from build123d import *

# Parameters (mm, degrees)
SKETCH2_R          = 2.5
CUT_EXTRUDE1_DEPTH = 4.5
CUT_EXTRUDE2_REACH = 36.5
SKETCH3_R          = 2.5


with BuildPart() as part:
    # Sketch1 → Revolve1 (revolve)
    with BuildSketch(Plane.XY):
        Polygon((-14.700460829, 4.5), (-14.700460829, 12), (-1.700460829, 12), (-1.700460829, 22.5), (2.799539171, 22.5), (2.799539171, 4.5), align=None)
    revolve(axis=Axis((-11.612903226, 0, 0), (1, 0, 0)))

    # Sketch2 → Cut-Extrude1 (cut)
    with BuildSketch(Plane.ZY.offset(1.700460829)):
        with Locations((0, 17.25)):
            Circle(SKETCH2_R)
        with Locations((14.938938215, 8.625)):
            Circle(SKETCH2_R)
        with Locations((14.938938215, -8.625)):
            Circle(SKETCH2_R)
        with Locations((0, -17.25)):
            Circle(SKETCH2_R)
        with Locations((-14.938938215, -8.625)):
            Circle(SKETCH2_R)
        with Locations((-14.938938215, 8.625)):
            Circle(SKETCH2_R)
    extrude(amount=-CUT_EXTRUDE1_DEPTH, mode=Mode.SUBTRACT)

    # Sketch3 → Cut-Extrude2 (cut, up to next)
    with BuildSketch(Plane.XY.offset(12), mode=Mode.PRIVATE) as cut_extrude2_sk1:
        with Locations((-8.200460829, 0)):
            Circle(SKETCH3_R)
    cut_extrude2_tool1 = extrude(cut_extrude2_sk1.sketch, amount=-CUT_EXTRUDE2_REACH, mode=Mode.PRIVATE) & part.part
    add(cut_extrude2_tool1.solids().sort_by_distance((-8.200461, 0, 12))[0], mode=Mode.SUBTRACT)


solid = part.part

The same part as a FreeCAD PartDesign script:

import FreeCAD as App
import Part
import Sketcher
from FreeCAD import Vector
Q = App.Units.Quantity

doc = App.newDocument("Part")
body = doc.addObject("PartDesign::Body", "Body")

sketch1 = body.newObject("Sketcher::SketchObject", "Sketch")
sketch1.AttachmentSupport = (doc.getObject("XY_Plane"), [""])
sketch1.MapMode = "FlatFace"
sketch1.addGeometry(Part.LineSegment(Vector(-14.7, 12, 0), Vector(-14.7, 4.5, 0)), False)
sketch1.addGeometry(Part.LineSegment(Vector(-14.7, 4.5, 0), Vector(2.8, 4.5, 0)), False)
sketch1.addGeometry(Part.LineSegment(Vector(2.8, 4.5, 0), Vector(2.8, 22.5, 0)), False)
sketch1.addGeometry(Part.LineSegment(Vector(2.8, 22.5, 0), Vector(-1.7, 22.5, 0)), False)
sketch1.addGeometry(Part.LineSegment(Vector(-1.7, 22.5, 0), Vector(-1.7, 12, 0)), False)
sketch1.addGeometry(Part.LineSegment(Vector(-1.7, 12, 0), Vector(-14.7, 12, 0)), False)
sketch1.addConstraint(Sketcher.Constraint("Coincident", 0, 2, 1, 1))
sketch1.addConstraint(Sketcher.Constraint("Coincident", 1, 2, 2, 1))
sketch1.addConstraint(Sketcher.Constraint("Coincident", 2, 2, 3, 1))
sketch1.addConstraint(Sketcher.Constraint("Coincident", 3, 2, 4, 1))
sketch1.addConstraint(Sketcher.Constraint("Coincident", 4, 2, 5, 1))
sketch1.addConstraint(Sketcher.Constraint("Coincident", 5, 2, 0, 1))
sketch1.addConstraint(Sketcher.Constraint("Vertical", 0))
sketch1.addConstraint(Sketcher.Constraint("Horizontal", 1))
sketch1.addConstraint(Sketcher.Constraint("Vertical", 2))
sketch1.addConstraint(Sketcher.Constraint("Horizontal", 3))
sketch1.addConstraint(Sketcher.Constraint("Vertical", 4))
sketch1.addConstraint(Sketcher.Constraint("Horizontal", 5))
sketch1.addConstraint(Sketcher.Constraint("DistanceX", 5, 2, 5, 1, Q("13 mm")))
sketch1.addConstraint(Sketcher.Constraint("DistanceY", 2, 1, 2, 2, Q("18 mm")))
sketch1.addConstraint(Sketcher.Constraint("DistanceX", 1, 1, 1, 2, Q("17.5 mm")))
sketch1.addConstraint(Sketcher.Constraint("DistanceY", 0, 2, 0, 1, Q("7.5 mm")))
sketch1.addConstraint(Sketcher.Constraint("DistanceY", -1, 1, 4, 2, Q("12 mm")))
sketch1.addConstraint(Sketcher.Constraint("DistanceX", 0, 2, -1, 1, Q("14.700461 mm")))
revolution = body.newObject("PartDesign::Revolution", "Revolution")
revolution.Profile = sketch1
revolution.ReferenceAxis = (sketch1, ["H_Axis"])
revolution.Angle = 360

sketch2 = body.newObject("Sketcher::SketchObject", "Sketch001")
sketch2.AttachmentSupport = (doc.getObject("YZ_Plane"), [""])
sketch2.MapMode = "FlatFace"
sketch2.AttachmentOffset = App.Placement(Vector(0, 0, -1.700461), App.Rotation())
sketch2.addGeometry(Part.Circle(Vector(17.2, 0, 0), Vector(0, 0, 1), 2.5), False)
sketch2.addGeometry(Part.Circle(Vector(8.6, 14.9, 0), Vector(0, 0, 1), 2.5), False)
sketch2.addGeometry(Part.Circle(Vector(-8.6, 14.9, 0), Vector(0, 0, 1), 2.5), False)
sketch2.addGeometry(Part.Circle(Vector(-17.2, 0, 0), Vector(0, 0, 1), 2.5), False)
sketch2.addGeometry(Part.Circle(Vector(-8.6, -14.9, 0), Vector(0, 0, 1), 2.5), False)
sketch2.addGeometry(Part.Circle(Vector(8.6, -14.9, 0), Vector(0, 0, 1), 2.5), False)
sketch2.addConstraint(Sketcher.Constraint("Equal", 0, 1))
sketch2.addConstraint(Sketcher.Constraint("Equal", 1, 2))
sketch2.addConstraint(Sketcher.Constraint("Equal", 2, 3))
sketch2.addConstraint(Sketcher.Constraint("Equal", 3, 4))
sketch2.addConstraint(Sketcher.Constraint("Equal", 4, 5))
sketch2.addConstraint(Sketcher.Constraint("Symmetric", 0, 3, 3, 3, -1, 1))
sketch2.addConstraint(Sketcher.Constraint("Symmetric", 1, 3, 4, 3, -1, 1))
sketch2.addConstraint(Sketcher.Constraint("Symmetric", 2, 3, 5, 3, -1, 1))
sketch2.addConstraint(Sketcher.Constraint("Symmetric", 1, 3, 2, 3, -2))
sketch2.addConstraint(Sketcher.Constraint("PointOnObject", 0, 3, -1))
sketch2.addConstraint(Sketcher.Constraint("Diameter", 0, Q("5 mm")))
sketch2.addConstraint(Sketcher.Constraint("DistanceX", 3, 3, 0, 3, Q("34.5 mm")))
sketch2.addConstraint(Sketcher.Constraint("DistanceX", 2, 3, 1, 3, Q("17.25 mm")))
sketch2.addConstraint(Sketcher.Constraint("DistanceY", -1, 1, 1, 3, Q("14.938938 mm")))
pocket1 = body.newObject("PartDesign::Pocket", "Pocket")
pocket1.Profile = sketch2
pocket1.Length = 4.5
pocket1.Reversed = True

sketch3 = body.newObject("Sketcher::SketchObject", "Sketch002")
sketch3.AttachmentSupport = (doc.getObject("XY_Plane"), [""])
sketch3.MapMode = "FlatFace"
sketch3.AttachmentOffset = App.Placement(Vector(0, 0, 12), App.Rotation())
sketch3.addGeometry(Part.Circle(Vector(-8.2, 0, 0), Vector(0, 0, 1), 2.5), False)
sketch3.addConstraint(Sketcher.Constraint("PointOnObject", 0, 3, -1))
sketch3.addConstraint(Sketcher.Constraint("Diameter", 0, Q("5 mm")))
sketch3.addConstraint(Sketcher.Constraint("DistanceX", 0, 3, -1, 1, Q("8.200461 mm")))
pocket2 = body.newObject("PartDesign::Pocket", "Pocket001")
pocket2.Profile = sketch3
pocket2.Type = "UpToFirst"

doc.recompute()
